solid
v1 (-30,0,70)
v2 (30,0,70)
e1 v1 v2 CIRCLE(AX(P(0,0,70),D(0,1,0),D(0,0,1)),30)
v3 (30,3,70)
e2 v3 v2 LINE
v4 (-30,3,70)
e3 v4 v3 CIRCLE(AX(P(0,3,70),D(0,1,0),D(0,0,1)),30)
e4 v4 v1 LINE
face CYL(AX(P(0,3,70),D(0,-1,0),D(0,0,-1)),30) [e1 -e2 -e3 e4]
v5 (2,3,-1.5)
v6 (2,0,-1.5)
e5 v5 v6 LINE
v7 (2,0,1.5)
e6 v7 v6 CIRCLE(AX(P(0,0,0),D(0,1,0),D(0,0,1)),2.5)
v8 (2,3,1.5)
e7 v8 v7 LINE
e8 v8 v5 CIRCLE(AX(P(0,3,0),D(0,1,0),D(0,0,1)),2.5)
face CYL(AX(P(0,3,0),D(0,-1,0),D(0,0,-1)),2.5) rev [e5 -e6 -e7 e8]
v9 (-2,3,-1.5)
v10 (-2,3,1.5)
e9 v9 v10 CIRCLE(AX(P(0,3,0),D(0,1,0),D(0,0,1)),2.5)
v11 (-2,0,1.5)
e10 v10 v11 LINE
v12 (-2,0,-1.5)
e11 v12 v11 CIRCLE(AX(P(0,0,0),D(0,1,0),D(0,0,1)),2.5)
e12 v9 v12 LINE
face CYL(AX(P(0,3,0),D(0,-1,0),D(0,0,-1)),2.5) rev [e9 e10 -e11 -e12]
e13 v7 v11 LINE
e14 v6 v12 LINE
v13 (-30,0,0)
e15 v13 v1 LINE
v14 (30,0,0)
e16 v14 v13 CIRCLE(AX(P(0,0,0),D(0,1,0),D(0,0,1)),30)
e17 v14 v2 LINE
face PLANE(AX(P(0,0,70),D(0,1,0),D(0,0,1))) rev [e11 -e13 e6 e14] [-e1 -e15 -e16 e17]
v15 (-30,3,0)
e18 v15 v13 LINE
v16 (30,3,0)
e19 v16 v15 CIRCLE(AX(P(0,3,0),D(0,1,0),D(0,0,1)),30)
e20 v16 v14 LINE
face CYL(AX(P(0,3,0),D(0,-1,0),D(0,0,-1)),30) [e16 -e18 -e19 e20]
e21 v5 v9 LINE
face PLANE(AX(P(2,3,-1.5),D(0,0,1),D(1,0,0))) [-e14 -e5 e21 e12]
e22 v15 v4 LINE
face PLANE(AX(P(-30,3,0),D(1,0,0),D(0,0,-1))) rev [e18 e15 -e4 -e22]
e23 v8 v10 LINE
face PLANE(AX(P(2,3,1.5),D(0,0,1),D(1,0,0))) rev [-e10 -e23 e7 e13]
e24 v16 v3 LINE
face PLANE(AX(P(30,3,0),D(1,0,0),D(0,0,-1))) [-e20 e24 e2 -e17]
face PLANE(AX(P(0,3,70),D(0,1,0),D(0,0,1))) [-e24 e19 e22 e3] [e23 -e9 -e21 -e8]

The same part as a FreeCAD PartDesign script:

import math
import FreeCAD as App
import Part
import Sketcher

V = App.Vector
Q = App.Units.Quantity

doc = App.newDocument("Part")
body = doc.addObject("PartDesign::Body", "Body")

sketch1 = body.newObject("Sketcher::SketchObject", "Sketch")
sketch1.AttachmentSupport = (doc.getObject("XZ_Plane"), [""])
sketch1.MapMode = "FlatFace"
sketch1.addGeometry(Part.LineSegment(V(-30, 0, 0), V(-30, 70, 0)), False)
sketch1.addGeometry(Part.ArcOfCircle(Part.Circle(V(0, 70, 0), V(0, 0, 1), 30), math.radians(0), math.radians(180)), False)
sketch1.addGeometry(Part.LineSegment(V(30, 70, 0), V(30, 0, 0)), False)
sketch1.addGeometry(Part.ArcOfCircle(Part.Circle(V(0, 0, 0), V(0, 0, 1), 30), math.radians(180), math.radians(360)), False)
sketch1.addGeometry(Part.ArcOfCircle(Part.Circle(V(0, 0, 0), V(0, 0, 1), 2.5), math.radians(-37), math.radians(37)), False)
sketch1.addGeometry(Part.LineSegment(V(2, 1.5, 0), V(-2, 1.5, 0)), False)
sketch1.addGeometry(Part.ArcOfCircle(Part.Circle(V(0, 0, 0), V(0, 0, 1), 2.5), math.radians(143), math.radians(217)), False)
sketch1.addGeometry(Part.LineSegment(V(-2, -1.5, 0), V(2, -1.5, 0)), False)
sketch1.addConstraint(Sketcher.Constraint("Tangent", 0, 2, 1, 2))
sketch1.addConstraint(Sketcher.Constraint("Tangent", 1, 1, 2, 1))
sketch1.addConstraint(Sketcher.Constraint("Tangent", 2, 2, 3, 2))
sketch1.addConstraint(Sketcher.Constraint("Tangent", 3, 1, 0, 1))
sketch1.addConstraint(Sketcher.Constraint("Coincident", 4, 2, 5, 1))
sketch1.addConstraint(Sketcher.Constraint("Coincident", 5, 2, 6, 1))
sketch1.addConstraint(Sketcher.Constraint("Coincident", 6, 2, 7, 1))
sketch1.addConstraint(Sketcher.Constraint("Coincident", 7, 2, 4, 1))
sketch1.addConstraint(Sketcher.Constraint("Vertical", 0))
sketch1.addConstraint(Sketcher.Constraint("Vertical", 2))
sketch1.addConstraint(Sketcher.Constraint("Horizontal", 5))
sketch1.addConstraint(Sketcher.Constraint("Horizontal", 7))
sketch1.addConstraint(Sketcher.Constraint("Coincident", 3, 3, -1, 1))
sketch1.addConstraint(Sketcher.Constraint("Coincident", 4, 3, -1, 1))
sketch1.addConstraint(Sketcher.Constraint("Coincident", 6, 3, -1, 1))
sketch1.addConstraint(Sketcher.Constraint("Equal", 4, 6))
sketch1.addConstraint(Sketcher.Constraint("Vertical", 5, 2, 6, 2))
sketch1.addConstraint(Sketcher.Constraint("Radius", 1, Q("30 mm")))
sketch1.addConstraint(Sketcher.Constraint("Radius", 4, Q("2.5 mm")))
sketch1.addConstraint(Sketcher.Constraint("DistanceX", 5, 2, 5, 1, Q("4 mm")))
sketch1.addConstraint(Sketcher.Constraint("DistanceY", 0, 1, 0, 2, Q("70 mm")))
pad1 = body.newObject("PartDesign::Pad", "Pad")
pad1.Profile = sketch1
pad1.Length = 3
pad1.Reversed = True

doc.recompute()
